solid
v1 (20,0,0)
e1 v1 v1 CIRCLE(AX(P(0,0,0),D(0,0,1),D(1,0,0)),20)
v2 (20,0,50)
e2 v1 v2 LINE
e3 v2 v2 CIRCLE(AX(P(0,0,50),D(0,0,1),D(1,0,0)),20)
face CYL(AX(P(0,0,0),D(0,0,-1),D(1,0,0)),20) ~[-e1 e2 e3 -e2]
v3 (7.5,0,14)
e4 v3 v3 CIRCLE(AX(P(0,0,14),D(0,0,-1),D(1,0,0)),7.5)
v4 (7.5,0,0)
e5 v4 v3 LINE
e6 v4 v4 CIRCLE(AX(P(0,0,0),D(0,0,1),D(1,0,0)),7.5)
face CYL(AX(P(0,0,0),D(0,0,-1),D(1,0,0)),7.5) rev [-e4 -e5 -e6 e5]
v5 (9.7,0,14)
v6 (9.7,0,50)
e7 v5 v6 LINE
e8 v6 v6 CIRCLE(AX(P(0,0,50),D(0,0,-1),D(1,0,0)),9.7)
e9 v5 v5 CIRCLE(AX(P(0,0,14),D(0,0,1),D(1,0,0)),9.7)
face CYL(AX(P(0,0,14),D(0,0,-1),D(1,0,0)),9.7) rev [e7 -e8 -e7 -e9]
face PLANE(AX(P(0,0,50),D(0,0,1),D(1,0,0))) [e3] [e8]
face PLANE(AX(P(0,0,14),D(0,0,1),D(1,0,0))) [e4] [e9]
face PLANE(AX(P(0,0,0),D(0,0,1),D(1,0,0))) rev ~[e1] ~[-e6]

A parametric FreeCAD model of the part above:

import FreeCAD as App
import Part
import Sketcher
from FreeCAD import Vector
Q = App.Units.Quantity

doc = App.newDocument("Part")
body = doc.addObject("PartDesign::Body", "Body")

sketch1 = body.newObject("Sketcher::SketchObject", "Sketch")
sketch1.AttachmentSupport = (doc.getObject("XY_Plane"), [""])
sketch1.MapMode = "FlatFace"
sketch1.AttachmentOffset = App.Placement(Vector(0, 0, 14), App.Rotation())
sketch1.addGeometry(Part.Circle(Vector(0, 0, 0), Vector(0, 0, 1), 10), False)
sketch1.addConstraint([
    Sketcher.Constraint("Coincident", 0, 3, -1, 1),
    Sketcher.Constraint("Diameter", 0, Q("19.4 mm")),
])
pad1 = body.newObject("PartDesign::Pad", "Pad")
pad1.Profile = sketch1
pad1.Length = 50
body2 = doc.addObject("PartDesign::Body", "Body001")

sketch2 = body2.newObject("Sketcher::SketchObject", "Sketch001")
sketch2.AttachmentSupport = (doc.getObject("XY_Plane001"), [""])
sketch2.MapMode = "FlatFace"
sketch2.addGeometry([
    Part.Circle(Vector(0, 0, 0), Vector(0, 0, 1), 20),
    Part.Circle(Vector(0, 0, 0), Vector(0, 0, 1), 8),
], False)
sketch2.addConstraint([
    Sketcher.Constraint("Coincident", 0, 3, -1, 1),
    Sketcher.Constraint("Coincident", 1, 3, -1, 1),
    Sketcher.Constraint("Diameter", 0, Q("40 mm")),
    Sketcher.Constraint("Diameter", 1, Q("15 mm")),
])
pad2 = body2.newObject("PartDesign::Pad", "Pad001")
pad2.Profile = sketch2
pad2.Length = 50
doc.recompute()

boolean = body2.newObject("PartDesign::Boolean", "Boolean")
boolean.Type = "Cut"
boolean.addObjects([body])

doc.recompute()
